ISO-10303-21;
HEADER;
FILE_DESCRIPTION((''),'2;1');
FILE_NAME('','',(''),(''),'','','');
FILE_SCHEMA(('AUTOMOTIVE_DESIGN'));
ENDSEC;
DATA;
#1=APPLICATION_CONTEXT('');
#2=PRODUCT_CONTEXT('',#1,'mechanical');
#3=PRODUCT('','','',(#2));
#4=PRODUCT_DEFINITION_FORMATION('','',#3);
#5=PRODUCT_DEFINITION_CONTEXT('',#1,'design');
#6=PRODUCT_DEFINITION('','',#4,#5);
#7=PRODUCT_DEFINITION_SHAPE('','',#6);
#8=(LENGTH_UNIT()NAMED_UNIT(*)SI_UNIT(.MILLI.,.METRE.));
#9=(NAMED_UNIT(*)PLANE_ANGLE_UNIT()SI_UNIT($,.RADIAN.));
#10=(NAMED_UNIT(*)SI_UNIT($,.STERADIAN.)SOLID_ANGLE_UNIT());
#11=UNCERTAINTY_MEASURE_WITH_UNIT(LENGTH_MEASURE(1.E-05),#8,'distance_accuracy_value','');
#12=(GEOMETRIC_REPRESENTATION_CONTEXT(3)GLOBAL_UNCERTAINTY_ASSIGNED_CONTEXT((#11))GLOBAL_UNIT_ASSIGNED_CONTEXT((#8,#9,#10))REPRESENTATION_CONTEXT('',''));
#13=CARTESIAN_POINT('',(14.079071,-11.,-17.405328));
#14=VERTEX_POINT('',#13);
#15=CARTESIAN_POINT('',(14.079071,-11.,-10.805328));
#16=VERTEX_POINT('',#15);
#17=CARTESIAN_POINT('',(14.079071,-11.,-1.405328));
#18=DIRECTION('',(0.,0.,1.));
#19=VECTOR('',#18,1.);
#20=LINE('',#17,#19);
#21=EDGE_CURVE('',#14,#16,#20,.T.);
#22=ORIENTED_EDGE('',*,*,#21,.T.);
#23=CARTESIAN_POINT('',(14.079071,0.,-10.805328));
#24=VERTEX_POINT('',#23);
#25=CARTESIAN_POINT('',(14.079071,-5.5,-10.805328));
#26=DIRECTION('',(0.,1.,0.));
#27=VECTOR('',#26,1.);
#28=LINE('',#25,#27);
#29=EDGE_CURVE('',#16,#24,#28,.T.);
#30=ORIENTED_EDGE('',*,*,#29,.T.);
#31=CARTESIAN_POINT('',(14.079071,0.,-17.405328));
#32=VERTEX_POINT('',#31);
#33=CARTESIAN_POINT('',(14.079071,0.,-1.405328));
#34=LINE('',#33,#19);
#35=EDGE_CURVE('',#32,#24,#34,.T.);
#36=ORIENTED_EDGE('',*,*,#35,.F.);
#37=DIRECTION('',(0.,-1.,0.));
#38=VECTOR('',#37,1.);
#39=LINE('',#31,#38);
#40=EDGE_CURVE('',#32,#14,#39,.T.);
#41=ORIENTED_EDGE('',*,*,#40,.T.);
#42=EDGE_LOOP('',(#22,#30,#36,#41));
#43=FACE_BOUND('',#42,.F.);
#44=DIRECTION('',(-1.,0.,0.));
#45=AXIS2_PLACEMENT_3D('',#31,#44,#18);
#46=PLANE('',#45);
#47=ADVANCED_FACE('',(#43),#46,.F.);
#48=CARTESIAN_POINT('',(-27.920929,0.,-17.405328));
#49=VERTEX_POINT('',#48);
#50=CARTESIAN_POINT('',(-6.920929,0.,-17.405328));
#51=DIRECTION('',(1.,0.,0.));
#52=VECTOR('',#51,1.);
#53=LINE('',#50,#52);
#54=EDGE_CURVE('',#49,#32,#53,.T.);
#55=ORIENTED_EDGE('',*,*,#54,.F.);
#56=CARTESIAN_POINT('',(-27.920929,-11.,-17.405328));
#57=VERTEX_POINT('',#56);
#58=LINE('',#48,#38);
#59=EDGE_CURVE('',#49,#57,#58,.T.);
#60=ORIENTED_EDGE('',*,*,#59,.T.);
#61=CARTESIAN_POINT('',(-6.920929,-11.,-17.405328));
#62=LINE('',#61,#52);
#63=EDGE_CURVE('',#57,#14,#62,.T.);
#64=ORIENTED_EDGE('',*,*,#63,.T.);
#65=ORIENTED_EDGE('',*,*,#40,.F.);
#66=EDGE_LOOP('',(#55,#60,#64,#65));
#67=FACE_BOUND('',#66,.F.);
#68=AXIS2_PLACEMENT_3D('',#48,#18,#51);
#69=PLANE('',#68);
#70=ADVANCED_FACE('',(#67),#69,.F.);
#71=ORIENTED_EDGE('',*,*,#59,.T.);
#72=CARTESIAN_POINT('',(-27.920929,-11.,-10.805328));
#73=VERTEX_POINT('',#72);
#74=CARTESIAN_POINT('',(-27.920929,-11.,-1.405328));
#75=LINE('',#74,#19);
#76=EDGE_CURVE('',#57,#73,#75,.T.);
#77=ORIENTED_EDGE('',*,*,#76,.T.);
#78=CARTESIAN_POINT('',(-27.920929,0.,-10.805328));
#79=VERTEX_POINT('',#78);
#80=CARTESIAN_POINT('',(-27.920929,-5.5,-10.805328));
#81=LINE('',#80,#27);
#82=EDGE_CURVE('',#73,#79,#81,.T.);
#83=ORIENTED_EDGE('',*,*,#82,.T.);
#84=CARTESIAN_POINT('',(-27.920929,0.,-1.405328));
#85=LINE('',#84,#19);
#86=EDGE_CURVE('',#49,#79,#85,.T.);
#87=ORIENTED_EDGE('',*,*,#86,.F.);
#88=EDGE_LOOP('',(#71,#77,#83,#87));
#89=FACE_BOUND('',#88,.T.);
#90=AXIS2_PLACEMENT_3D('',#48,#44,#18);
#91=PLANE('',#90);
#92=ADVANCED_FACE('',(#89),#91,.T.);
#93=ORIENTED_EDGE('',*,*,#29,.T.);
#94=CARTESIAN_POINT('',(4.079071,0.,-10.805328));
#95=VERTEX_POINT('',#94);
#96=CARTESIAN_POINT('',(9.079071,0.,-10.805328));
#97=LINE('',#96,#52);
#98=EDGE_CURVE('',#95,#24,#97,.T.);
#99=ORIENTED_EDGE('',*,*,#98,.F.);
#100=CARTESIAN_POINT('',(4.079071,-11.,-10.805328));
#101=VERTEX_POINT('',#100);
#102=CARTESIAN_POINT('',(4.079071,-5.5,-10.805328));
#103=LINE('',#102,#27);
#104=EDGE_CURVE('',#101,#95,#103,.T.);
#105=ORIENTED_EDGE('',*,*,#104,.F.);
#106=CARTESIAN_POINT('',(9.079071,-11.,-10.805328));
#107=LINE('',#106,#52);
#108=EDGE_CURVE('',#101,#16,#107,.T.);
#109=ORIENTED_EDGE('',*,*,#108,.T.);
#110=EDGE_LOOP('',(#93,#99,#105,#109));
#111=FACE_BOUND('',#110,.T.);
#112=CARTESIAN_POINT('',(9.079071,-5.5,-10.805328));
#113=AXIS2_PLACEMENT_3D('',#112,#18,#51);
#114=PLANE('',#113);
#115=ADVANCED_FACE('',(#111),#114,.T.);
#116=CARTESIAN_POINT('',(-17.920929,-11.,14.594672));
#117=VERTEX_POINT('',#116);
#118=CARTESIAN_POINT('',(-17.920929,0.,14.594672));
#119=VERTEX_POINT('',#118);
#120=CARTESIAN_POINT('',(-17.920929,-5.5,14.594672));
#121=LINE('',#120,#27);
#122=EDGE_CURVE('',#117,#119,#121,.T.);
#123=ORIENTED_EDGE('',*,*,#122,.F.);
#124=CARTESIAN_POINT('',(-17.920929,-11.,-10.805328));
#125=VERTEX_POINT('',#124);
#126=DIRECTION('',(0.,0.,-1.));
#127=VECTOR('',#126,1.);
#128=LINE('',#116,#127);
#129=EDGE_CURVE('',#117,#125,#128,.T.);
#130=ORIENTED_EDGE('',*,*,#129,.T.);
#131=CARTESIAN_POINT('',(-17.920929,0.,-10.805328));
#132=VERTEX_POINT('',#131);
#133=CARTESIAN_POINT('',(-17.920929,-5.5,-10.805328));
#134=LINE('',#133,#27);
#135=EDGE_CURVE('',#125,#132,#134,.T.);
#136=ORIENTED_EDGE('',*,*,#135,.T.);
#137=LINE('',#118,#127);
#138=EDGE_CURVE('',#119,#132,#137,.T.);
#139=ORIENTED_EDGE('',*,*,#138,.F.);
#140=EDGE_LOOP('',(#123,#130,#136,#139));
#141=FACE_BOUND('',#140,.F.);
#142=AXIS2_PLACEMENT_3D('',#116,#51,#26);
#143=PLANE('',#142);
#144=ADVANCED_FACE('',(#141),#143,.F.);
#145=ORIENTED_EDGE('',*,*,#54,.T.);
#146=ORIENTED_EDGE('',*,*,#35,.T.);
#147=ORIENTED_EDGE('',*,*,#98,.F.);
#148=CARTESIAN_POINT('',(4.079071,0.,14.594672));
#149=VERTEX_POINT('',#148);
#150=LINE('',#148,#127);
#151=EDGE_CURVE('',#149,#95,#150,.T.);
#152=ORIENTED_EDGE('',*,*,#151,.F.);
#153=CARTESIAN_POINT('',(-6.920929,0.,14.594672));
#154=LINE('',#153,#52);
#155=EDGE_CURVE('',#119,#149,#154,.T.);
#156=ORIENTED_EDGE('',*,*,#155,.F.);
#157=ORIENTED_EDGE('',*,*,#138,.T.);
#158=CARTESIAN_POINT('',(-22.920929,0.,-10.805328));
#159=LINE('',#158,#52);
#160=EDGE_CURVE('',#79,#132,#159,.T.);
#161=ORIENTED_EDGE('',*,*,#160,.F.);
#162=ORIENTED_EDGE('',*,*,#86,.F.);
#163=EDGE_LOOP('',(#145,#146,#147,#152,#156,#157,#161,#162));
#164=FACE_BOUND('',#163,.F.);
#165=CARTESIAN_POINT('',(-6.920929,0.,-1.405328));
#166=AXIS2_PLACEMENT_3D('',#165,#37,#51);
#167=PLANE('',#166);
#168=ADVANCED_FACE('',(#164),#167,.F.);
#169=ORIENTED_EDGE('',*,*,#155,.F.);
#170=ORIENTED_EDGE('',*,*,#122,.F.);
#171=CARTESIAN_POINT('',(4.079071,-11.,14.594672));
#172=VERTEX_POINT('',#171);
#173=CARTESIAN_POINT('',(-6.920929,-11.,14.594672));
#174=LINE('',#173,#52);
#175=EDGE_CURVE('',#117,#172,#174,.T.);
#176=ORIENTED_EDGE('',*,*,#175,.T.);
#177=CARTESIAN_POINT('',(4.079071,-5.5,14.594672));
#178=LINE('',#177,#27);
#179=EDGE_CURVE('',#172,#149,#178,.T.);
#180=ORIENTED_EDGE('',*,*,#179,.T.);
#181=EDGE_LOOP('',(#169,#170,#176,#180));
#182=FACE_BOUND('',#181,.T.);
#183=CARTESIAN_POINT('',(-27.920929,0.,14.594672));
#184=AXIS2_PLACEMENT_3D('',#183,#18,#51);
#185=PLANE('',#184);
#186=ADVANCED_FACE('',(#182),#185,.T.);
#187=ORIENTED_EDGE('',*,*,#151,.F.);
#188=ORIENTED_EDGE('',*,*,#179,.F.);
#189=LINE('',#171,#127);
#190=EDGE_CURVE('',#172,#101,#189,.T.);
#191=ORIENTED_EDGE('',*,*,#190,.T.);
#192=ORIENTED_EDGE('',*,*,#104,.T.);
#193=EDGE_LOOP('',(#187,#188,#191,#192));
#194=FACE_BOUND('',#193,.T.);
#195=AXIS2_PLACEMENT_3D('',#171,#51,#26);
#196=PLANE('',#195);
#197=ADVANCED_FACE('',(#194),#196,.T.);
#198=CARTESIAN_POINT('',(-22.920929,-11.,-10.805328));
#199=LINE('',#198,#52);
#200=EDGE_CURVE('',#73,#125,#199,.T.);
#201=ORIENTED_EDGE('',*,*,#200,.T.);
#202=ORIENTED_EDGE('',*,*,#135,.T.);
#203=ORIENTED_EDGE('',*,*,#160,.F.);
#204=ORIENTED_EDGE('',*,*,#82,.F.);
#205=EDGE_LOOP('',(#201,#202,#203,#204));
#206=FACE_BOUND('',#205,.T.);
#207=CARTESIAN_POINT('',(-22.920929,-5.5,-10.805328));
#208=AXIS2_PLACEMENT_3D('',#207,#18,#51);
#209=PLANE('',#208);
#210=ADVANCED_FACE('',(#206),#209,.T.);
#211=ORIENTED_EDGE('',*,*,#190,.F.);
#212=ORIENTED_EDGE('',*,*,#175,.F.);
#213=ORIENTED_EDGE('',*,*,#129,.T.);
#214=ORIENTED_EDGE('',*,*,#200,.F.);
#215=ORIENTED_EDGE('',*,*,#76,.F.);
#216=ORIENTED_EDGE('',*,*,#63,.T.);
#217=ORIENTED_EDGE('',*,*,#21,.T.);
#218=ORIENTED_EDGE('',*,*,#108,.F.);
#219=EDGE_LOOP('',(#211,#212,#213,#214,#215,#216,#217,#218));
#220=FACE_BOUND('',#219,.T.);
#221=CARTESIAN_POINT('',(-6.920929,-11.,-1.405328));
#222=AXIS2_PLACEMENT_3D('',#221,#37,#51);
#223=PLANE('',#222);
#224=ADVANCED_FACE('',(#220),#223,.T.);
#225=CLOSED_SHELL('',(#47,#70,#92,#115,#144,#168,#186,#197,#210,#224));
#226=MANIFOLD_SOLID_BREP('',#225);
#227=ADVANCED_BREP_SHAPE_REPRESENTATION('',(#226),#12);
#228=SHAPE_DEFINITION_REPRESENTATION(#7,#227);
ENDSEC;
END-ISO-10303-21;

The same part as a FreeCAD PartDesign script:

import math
import FreeCAD as App
import Part
import Sketcher

V = App.Vector
Q = App.Units.Quantity


def add_polygon(sketch, points):
    """Adds a closed chain of lines whose ends are joined by coincident constraints."""
    first, n = sketch.GeometryCount, len(points)
    for a, b in zip(points, points[1:] + points[:1]):
        sketch.addGeometry(Part.LineSegment(App.Vector(*a, 0), App.Vector(*b, 0)), False)
    for i in range(n):
        sketch.addConstraint(Sketcher.Constraint("Coincident", first + i, 2, first + (i + 1) % n, 1))

doc = App.newDocument("Part")
body = doc.addObject("PartDesign::Body", "Body")

sketch1 = body.newObject("Sketcher::SketchObject", "Sketch")
sketch1.AttachmentSupport = (doc.getObject("XZ_Plane"), [""])
sketch1.MapMode = "FlatFace"
add_polygon(sketch1, [(-28, 15), (-28, -17), (14, -17), (14, 15)])
sketch1.addConstraint(Sketcher.Constraint("Vertical", 0))
sketch1.addConstraint(Sketcher.Constraint("Horizontal", 1))
sketch1.addConstraint(Sketcher.Constraint("Vertical", 2))
sketch1.addConstraint(Sketcher.Constraint("Horizontal", 3))
sketch1.addConstraint(Sketcher.Constraint("DistanceX", 1, 1, 1, 2, Q("42 mm")))
sketch1.addConstraint(Sketcher.Constraint("DistanceY", 0, 2, 0, 1, Q("32 mm")))
sketch1.addConstraint(Sketcher.Constraint("DistanceX", 0, 2, -1, 1, Q("27.920929 mm")))
sketch1.addConstraint(Sketcher.Constraint("DistanceY", 0, 2, -1, 1, Q("17.405328 mm")))
pad1 = body.newObject("PartDesign::Pad", "Pad")
pad1.Profile = sketch1
pad1.Length = 11

sketch2 = body.newObject("Sketcher::SketchObject", "Sketch001")
sketch2.AttachmentSupport = (doc.getObject("XY_Plane"), [""])
sketch2.MapMode = "FlatFace"
sketch2.AttachmentOffset = App.Placement(V(0, 0, 14.594672), App.Rotation())
add_polygon(sketch2, [(-28, 0), (-28, -11), (-18, -11), (-18, 0)])
sketch2.addConstraint(Sketcher.Constraint("Vertical", 0))
sketch2.addConstraint(Sketcher.Constraint("Horizontal", 1))
sketch2.addConstraint(Sketcher.Constraint("Vertical", 2))
sketch2.addConstraint(Sketcher.Constraint("Horizontal", 3))
sketch2.addConstraint(Sketcher.Constraint("PointOnObject", 2, 2, -1))
sketch2.addConstraint(Sketcher.Constraint("DistanceX", 1, 1, 1, 2, Q("10 mm")))
sketch2.addConstraint(Sketcher.Constraint("DistanceY", 0, 2, 0, 1, Q("11 mm")))
sketch2.addConstraint(Sketcher.Constraint("DistanceX", 0, 2, -1, 1, Q("27.920929 mm")))
pocket1 = body.newObject("PartDesign::Pocket", "Pocket")
pocket1.Profile = sketch2
pocket1.Length = 25.4

sketch3 = body.newObject("Sketcher::SketchObject", "Sketch002")
sketch3.AttachmentSupport = (doc.getObject("XY_Plane"), [""])
sketch3.MapMode = "FlatFace"
sketch3.AttachmentOffset = App.Placement(V(0, 0, 14.594672), App.Rotation())
add_polygon(sketch3, [(4, 0), (4, -11), (14, -11), (14, 0)])
sketch3.addConstraint(Sketcher.Constraint("Vertical", 0))
sketch3.addConstraint(Sketcher.Constraint("Horizontal", 1))
sketch3.addConstraint(Sketcher.Constraint("Vertical", 2))
sketch3.addConstraint(Sketcher.Constraint("Horizontal", 3))
sketch3.addConstraint(Sketcher.Constraint("PointOnObject", 2, 2, -1))
sketch3.addConstraint(Sketcher.Constraint("DistanceX", 1, 1, 1, 2, Q("10 mm")))
sketch3.addConstraint(Sketcher.Constraint("DistanceY", 0, 2, 0, 1, Q("11 mm")))
sketch3.addConstraint(Sketcher.Constraint("DistanceX", -1, 1, 0, 2, Q("4.079071 mm")))
pocket2 = body.newObject("PartDesign::Pocket", "Pocket001")
pocket2.Profile = sketch3
pocket2.Length = 25.4

sketch4 = body.newObject("Sketcher::SketchObject", "Sketch003")
sketch4.AttachmentSupport = (doc.getObject("XZ_Plane"), [""])
sketch4.MapMode = "FlatFace"
sketch4.addGeometry(Part.ArcOfCircle(Part.Circle(V(-12.3, 9.2, 0), V(0, 0, 1), 3.4), math.radians(104), math.radians(125)), False)
sketch4.addGeometry(Part.ArcOfCircle(Part.Circle(V(-14.5, 11.7, 0), V(0, 0, 1), 1.6), math.radians(-28), math.radians(32)), False)
sketch4.addGeometry(Part.ArcOfCircle(Part.Circle(V(-13.9, 10.4, 0), V(0, 0, 1), 0.9), math.radians(27), math.radians(89)), False)
sketch4.addGeometry(Part.ArcOfCircle(Part.Circle(V(-15.3, 10.9, 0), V(0, 0, 1), 1.4), math.radians(18), math.radians(47)), False)
sketch4.addConstraint(Sketcher.Constraint("Coincident", 0, 1, 1, 2))
sketch4.addConstraint(Sketcher.Constraint("Coincident", 1, 1, 2, 1))
sketch4.addConstraint(Sketcher.Constraint("Coincident", 2, 2, 3, 1))
sketch4.addConstraint(Sketcher.Constraint("Coincident", 3, 2, 0, 2))
sketch4.addConstraint(Sketcher.Constraint("Radius", 0, Q("3.411237 mm")))
sketch4.addConstraint(Sketcher.Constraint("Radius", 1, Q("1.642487 mm")))
sketch4.addConstraint(Sketcher.Constraint("Radius", 2, Q("0.939696 mm")))
sketch4.addConstraint(Sketcher.Constraint("Radius", 3, Q("1.433223 mm")))
sketch4.addConstraint(Sketcher.Constraint("DistanceX", 0, 3, -1, 1, Q("12.341798 mm")))
sketch4.addConstraint(Sketcher.Constraint("DistanceX", 2, 3, 0, 1, Q("0.785199 mm")))
sketch4.addConstraint(Sketcher.Constraint("DistanceX", 3, 2, 2, 2, Q("0.391598 mm")))
sketch4.addConstraint(Sketcher.Constraint("DistanceY", -1, 1, 1, 3, Q("11.65712 mm")))
sketch4.addConstraint(Sketcher.Constraint("DistanceY", -1, 1, 2, 3, Q("10.444478 mm")))
sketch4.addConstraint(Sketcher.Constraint("DistanceY", -1, 1, 1, 1, Q("10.877388 mm")))
sketch4.addConstraint(Sketcher.Constraint("DistanceX", 2, 2, -1, 1, Q("13.917749 mm")))
sketch4.addConstraint(Sketcher.Constraint("DistanceY", 0, 3, 2, 3, Q("1.237242 mm")))
pad2 = body.newObject("PartDesign::Pad", "Pad001")
pad2.Profile = sketch4
pad2.Length = 1.525342

doc.recompute()
